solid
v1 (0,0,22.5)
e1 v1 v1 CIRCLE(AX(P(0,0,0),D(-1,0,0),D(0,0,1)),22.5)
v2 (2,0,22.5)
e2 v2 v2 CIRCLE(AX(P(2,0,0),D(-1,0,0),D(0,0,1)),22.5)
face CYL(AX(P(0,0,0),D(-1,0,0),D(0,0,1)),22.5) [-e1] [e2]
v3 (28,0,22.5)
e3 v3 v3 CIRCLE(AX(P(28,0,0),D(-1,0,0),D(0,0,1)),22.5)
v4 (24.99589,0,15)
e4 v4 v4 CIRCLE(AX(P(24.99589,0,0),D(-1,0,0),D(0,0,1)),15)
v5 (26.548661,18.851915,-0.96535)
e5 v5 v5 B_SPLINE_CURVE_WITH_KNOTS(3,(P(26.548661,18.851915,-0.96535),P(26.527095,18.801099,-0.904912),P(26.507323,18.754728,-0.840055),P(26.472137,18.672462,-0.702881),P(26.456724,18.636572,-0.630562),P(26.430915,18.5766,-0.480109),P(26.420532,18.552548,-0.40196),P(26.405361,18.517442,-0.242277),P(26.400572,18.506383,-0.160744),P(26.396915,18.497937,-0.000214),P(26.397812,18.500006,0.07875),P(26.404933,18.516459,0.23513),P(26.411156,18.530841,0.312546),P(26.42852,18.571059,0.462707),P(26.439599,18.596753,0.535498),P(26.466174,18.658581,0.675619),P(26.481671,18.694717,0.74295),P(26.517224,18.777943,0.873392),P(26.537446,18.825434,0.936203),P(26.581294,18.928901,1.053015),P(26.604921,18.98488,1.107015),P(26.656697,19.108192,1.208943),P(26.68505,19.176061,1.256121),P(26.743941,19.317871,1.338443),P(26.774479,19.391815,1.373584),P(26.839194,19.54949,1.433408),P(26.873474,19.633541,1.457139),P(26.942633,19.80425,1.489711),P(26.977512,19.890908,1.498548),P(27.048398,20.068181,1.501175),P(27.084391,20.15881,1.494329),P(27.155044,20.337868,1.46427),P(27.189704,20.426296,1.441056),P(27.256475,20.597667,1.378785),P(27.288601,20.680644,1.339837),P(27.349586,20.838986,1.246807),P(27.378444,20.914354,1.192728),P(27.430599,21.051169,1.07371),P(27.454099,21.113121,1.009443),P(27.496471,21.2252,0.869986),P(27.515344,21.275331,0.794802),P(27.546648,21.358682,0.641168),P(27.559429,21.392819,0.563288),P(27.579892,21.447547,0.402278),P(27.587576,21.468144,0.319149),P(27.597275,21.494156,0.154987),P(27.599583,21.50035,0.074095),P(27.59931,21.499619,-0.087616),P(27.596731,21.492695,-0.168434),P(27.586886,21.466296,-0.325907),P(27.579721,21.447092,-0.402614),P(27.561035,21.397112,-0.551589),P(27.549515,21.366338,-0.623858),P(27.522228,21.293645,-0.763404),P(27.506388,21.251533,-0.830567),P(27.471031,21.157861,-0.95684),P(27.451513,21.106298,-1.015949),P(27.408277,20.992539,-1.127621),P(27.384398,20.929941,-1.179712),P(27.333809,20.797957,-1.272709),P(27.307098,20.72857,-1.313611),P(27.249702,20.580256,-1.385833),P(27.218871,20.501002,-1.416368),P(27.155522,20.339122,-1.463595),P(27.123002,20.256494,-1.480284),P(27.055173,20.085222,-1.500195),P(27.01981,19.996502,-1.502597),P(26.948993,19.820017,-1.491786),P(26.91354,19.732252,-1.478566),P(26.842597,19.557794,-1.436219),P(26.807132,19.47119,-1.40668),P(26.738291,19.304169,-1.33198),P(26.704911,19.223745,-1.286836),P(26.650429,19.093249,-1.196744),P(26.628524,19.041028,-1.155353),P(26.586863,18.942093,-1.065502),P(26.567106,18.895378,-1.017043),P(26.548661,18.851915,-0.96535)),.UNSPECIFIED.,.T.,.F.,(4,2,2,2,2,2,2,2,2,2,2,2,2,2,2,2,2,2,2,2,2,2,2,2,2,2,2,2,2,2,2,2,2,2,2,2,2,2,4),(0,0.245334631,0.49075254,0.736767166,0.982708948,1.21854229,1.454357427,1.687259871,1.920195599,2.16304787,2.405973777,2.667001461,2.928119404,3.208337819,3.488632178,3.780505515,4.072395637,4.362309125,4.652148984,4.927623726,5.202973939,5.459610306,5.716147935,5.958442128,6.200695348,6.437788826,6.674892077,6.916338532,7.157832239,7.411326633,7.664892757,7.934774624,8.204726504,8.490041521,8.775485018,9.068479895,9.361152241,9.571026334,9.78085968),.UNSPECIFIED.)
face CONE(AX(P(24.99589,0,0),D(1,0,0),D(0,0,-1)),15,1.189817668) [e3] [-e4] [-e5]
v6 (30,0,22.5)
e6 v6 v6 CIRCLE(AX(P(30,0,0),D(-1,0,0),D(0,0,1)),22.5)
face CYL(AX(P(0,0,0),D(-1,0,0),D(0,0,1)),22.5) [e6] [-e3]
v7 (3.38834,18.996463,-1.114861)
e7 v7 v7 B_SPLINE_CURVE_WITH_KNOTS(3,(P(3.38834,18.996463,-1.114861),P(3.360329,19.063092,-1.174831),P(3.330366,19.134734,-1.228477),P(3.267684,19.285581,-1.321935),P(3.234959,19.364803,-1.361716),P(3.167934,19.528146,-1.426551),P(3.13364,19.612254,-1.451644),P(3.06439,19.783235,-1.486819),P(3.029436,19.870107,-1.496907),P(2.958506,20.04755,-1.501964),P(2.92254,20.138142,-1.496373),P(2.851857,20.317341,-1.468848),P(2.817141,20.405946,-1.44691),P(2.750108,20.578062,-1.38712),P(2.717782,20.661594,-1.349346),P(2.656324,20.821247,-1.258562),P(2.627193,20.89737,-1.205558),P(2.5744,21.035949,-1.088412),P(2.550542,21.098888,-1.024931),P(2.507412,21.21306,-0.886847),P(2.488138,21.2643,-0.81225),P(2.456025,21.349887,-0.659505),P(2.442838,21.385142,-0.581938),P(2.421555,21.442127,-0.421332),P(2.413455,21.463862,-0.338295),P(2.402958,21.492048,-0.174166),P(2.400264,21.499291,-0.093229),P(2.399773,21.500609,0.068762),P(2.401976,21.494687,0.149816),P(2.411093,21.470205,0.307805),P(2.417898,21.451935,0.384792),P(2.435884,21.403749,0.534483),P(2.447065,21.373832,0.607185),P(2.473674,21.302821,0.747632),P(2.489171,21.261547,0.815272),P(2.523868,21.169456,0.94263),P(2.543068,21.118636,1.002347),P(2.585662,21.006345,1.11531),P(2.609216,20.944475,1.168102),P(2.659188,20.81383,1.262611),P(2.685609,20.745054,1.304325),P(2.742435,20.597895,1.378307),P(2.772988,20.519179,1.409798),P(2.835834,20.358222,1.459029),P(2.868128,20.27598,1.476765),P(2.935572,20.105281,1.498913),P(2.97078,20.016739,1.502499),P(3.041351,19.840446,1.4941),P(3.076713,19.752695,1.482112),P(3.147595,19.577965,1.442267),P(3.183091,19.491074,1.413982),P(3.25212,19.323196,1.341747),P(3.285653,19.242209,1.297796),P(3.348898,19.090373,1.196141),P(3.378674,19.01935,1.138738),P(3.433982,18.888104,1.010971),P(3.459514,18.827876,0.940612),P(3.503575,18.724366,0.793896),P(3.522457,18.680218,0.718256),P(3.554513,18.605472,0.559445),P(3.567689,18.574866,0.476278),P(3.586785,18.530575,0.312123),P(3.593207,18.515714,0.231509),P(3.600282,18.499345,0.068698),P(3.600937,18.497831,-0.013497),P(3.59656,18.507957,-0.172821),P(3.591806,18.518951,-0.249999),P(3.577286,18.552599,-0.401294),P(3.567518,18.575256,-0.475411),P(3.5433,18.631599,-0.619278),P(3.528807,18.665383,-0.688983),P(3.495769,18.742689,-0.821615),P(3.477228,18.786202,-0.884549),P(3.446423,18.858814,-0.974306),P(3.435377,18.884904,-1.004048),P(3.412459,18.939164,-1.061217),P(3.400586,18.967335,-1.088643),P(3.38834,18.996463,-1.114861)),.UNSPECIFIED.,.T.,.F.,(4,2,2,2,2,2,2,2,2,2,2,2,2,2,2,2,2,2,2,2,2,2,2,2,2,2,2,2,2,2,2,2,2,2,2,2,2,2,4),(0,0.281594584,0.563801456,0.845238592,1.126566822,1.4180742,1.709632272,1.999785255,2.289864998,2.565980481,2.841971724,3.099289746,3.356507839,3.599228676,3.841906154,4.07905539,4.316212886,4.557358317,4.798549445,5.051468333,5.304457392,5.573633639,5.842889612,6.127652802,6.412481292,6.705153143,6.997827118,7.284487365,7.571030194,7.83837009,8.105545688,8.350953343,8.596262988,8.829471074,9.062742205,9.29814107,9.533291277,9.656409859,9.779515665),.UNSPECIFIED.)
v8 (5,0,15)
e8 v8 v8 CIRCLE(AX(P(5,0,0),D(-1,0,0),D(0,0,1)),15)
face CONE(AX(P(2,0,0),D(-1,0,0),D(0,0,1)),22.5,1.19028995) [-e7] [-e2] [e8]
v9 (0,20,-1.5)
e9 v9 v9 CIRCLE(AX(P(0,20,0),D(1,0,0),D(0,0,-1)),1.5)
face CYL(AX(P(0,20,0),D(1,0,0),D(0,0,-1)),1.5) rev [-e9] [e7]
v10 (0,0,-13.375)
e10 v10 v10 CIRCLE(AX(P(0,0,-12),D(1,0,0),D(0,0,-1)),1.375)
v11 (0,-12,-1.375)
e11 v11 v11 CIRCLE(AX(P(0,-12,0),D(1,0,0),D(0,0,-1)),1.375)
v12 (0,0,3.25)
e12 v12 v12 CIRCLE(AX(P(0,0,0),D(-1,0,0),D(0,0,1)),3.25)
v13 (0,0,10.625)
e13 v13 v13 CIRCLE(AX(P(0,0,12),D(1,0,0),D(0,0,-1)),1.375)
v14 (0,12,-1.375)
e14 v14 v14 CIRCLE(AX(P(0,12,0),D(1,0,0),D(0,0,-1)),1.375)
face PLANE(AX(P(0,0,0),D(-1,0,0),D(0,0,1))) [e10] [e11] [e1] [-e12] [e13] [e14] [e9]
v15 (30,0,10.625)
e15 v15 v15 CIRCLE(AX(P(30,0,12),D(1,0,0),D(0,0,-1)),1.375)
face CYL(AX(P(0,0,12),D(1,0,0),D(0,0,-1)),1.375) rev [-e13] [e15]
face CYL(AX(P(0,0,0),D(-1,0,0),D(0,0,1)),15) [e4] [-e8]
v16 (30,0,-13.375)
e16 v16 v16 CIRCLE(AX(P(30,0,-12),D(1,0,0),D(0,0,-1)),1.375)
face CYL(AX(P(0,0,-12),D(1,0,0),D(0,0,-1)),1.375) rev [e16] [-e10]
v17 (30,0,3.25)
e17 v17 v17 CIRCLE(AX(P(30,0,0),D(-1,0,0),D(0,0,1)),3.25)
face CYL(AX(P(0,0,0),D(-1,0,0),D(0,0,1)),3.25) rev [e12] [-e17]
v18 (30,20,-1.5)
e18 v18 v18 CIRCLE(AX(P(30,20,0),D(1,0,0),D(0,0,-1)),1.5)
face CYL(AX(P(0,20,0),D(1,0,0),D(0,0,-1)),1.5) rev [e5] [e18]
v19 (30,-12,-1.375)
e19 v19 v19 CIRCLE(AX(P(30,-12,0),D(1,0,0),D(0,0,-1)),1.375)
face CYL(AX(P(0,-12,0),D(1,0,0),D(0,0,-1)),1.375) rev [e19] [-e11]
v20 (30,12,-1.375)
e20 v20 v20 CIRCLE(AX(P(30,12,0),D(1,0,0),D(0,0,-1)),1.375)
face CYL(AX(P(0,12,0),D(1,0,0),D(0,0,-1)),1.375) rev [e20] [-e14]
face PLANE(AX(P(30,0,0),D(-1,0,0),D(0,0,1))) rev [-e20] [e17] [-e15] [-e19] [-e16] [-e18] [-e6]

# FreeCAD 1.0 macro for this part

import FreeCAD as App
import Part
import Sketcher

V = App.Vector
Q = App.Units.Quantity

doc = App.newDocument("Part")
params = doc.addObject("Spreadsheet::Sheet", "Params")
for row, (alias, value) in enumerate([
    ("sketch1_width", "2 mm"),
    ("sketch1_width2", "30 mm"),
    ("sketch1_height", "19.25 mm"),
    ("revolution_angle", "360 deg"),
    ("sketch2_diameter", "3 mm"),
    ("sketch2_diameter2", "2.75 mm"),
], start=1):
    params.set(f"A{row}", alias)
    params.set(f"B{row}", "=" + value)
    params.setAlias(f"B{row}", alias)

body = doc.addObject("PartDesign::Body", "Body")

sketch1 = body.newObject("Sketcher::SketchObject", "Sketch")
sketch1.AttachmentSupport = (doc.getObject("XZ_Plane"), [""])
sketch1.MapMode = "FlatFace"
sketch1.addGeometry([
    Part.LineSegment(V(5, -15, 0), V(2, -22.5, 0)),
    Part.LineSegment(V(2, -22.5, 0), V(0, -22.5, 0)),
    Part.LineSegment(V(0, -22.5, 0), V(0, -3.2, 0)),
    Part.LineSegment(V(0, -3.2, 0), V(30, -3.2, 0)),
    Part.LineSegment(V(30, -3.2, 0), V(30, -22.5, 0)),
    Part.LineSegment(V(30, -22.5, 0), V(28, -22.5, 0)),
    Part.LineSegment(V(28, -22.5, 0), V(25, -15, 0)),
    Part.LineSegment(V(25, -15, 0), V(5, -15, 0)),
], False)
sketch1.addConstraint([
    Sketcher.Constraint("Coincident", 0, 2, 1, 1),
    Sketcher.Constraint("Coincident", 1, 2, 2, 1),
    Sketcher.Constraint("Coincident", 2, 2, 3, 1),
    Sketcher.Constraint("Coincident", 3, 2, 4, 1),
    Sketcher.Constraint("Coincident", 4, 2, 5, 1),
    Sketcher.Constraint("Coincident", 5, 2, 6, 1),
    Sketcher.Constraint("Coincident", 6, 2, 7, 1),
    Sketcher.Constraint("Coincident", 7, 2, 0, 1),
    Sketcher.Constraint("Horizontal", 1),
    Sketcher.Constraint("Vertical", 2),
    Sketcher.Constraint("Horizontal", 3),
    Sketcher.Constraint("Vertical", 4),
    Sketcher.Constraint("Horizontal", 5),
    Sketcher.Constraint("Horizontal", 7),
    Sketcher.Constraint("PointOnObject", 1, 2, -2),
    Sketcher.Constraint("Horizontal", 1, 2, 4, 2),
    Sketcher.Constraint("Equal", 1, 5),
    Sketcher.Constraint("DistanceX", 1, 2, 1, 1, Q("2 mm")),
    Sketcher.Constraint("DistanceX", 3, 1, 3, 2, Q("30 mm")),
    Sketcher.Constraint("DistanceY", 6, 2, -1, 1, Q("15 mm")),
    Sketcher.Constraint("DistanceX", -1, 1, 7, 2, Q("5 mm")),
    Sketcher.Constraint("DistanceY", 2, 1, 2, 2, Q("19.25 mm")),
    Sketcher.Constraint("DistanceY", 0, 2, -1, 1, Q("22.5 mm")),
    Sketcher.Constraint("DistanceX", 7, 2, 7, 1, Q("19.99589 mm")),
])
sketch1.setExpression("Constraints[17]", "Params.sketch1_width")
sketch1.setExpression("Constraints[18]", "Params.sketch1_width2")
sketch1.setExpression("Constraints[21]", "Params.sketch1_height")
revolution = body.newObject("PartDesign::Revolution", "Revolution")
revolution.Profile = sketch1
revolution.ReferenceAxis = (sketch1, ["H_Axis"])
revolution.setExpression("Angle", "Params.revolution_angle")

sketch2 = body.newObject("Sketcher::SketchObject", "Sketch001")
sketch2.AttachmentSupport = (doc.getObject("YZ_Plane"), [""])
sketch2.MapMode = "FlatFace"
sketch2.AttachmentOffset = App.Placement(V(0, 0, 30), App.Rotation())
sketch2.addGeometry([
    Part.Circle(V(12, 0, 0), V(0, 0, 1), 1.4),
    Part.Circle(V(20, 0, 0), V(0, 0, 1), 1.5),
    Part.Circle(V(0, -12, 0), V(0, 0, 1), 1.4),
    Part.Circle(V(-12, 0, 0), V(0, 0, 1), 1.4),
    Part.Circle(V(0, 12, 0), V(0, 0, 1), 1.4),
], False)
sketch2.addConstraint([
    Sketcher.Constraint("Equal", 0, 2),
    Sketcher.Constraint("Equal", 2, 3),
    Sketcher.Constraint("Equal", 3, 4),
    Sketcher.Constraint("Symmetric", 0, 3, 3, 3, -1, 1),
    Sketcher.Constraint("Symmetric", 2, 3, 4, 3, -1, 1),
    Sketcher.Constraint("PointOnObject", 0, 3, -1),
    Sketcher.Constraint("PointOnObject", 1, 3, -1),
    Sketcher.Constraint("PointOnObject", 2, 3, -2),
    Sketcher.Constraint("Diameter", 1, Q("3 mm")),
    Sketcher.Constraint("Diameter", 0, Q("2.75 mm")),
    Sketcher.Constraint("DistanceX", -1, 1, 0, 3, Q("12 mm")),
    Sketcher.Constraint("DistanceX", -1, 1, 1, 3, Q("20 mm")),
    Sketcher.Constraint("DistanceY", 2, 3, -1, 1, Q("12 mm")),
])
sketch2.setExpression("Constraints[8]", "Params.sketch2_diameter")
sketch2.setExpression("Constraints[9]", "Params.sketch2_diameter2")
pocket1 = body.newObject("PartDesign::Pocket", "Pocket")
pocket1.Profile = sketch2
pocket1.Type = "ThroughAll"

doc.recompute()
